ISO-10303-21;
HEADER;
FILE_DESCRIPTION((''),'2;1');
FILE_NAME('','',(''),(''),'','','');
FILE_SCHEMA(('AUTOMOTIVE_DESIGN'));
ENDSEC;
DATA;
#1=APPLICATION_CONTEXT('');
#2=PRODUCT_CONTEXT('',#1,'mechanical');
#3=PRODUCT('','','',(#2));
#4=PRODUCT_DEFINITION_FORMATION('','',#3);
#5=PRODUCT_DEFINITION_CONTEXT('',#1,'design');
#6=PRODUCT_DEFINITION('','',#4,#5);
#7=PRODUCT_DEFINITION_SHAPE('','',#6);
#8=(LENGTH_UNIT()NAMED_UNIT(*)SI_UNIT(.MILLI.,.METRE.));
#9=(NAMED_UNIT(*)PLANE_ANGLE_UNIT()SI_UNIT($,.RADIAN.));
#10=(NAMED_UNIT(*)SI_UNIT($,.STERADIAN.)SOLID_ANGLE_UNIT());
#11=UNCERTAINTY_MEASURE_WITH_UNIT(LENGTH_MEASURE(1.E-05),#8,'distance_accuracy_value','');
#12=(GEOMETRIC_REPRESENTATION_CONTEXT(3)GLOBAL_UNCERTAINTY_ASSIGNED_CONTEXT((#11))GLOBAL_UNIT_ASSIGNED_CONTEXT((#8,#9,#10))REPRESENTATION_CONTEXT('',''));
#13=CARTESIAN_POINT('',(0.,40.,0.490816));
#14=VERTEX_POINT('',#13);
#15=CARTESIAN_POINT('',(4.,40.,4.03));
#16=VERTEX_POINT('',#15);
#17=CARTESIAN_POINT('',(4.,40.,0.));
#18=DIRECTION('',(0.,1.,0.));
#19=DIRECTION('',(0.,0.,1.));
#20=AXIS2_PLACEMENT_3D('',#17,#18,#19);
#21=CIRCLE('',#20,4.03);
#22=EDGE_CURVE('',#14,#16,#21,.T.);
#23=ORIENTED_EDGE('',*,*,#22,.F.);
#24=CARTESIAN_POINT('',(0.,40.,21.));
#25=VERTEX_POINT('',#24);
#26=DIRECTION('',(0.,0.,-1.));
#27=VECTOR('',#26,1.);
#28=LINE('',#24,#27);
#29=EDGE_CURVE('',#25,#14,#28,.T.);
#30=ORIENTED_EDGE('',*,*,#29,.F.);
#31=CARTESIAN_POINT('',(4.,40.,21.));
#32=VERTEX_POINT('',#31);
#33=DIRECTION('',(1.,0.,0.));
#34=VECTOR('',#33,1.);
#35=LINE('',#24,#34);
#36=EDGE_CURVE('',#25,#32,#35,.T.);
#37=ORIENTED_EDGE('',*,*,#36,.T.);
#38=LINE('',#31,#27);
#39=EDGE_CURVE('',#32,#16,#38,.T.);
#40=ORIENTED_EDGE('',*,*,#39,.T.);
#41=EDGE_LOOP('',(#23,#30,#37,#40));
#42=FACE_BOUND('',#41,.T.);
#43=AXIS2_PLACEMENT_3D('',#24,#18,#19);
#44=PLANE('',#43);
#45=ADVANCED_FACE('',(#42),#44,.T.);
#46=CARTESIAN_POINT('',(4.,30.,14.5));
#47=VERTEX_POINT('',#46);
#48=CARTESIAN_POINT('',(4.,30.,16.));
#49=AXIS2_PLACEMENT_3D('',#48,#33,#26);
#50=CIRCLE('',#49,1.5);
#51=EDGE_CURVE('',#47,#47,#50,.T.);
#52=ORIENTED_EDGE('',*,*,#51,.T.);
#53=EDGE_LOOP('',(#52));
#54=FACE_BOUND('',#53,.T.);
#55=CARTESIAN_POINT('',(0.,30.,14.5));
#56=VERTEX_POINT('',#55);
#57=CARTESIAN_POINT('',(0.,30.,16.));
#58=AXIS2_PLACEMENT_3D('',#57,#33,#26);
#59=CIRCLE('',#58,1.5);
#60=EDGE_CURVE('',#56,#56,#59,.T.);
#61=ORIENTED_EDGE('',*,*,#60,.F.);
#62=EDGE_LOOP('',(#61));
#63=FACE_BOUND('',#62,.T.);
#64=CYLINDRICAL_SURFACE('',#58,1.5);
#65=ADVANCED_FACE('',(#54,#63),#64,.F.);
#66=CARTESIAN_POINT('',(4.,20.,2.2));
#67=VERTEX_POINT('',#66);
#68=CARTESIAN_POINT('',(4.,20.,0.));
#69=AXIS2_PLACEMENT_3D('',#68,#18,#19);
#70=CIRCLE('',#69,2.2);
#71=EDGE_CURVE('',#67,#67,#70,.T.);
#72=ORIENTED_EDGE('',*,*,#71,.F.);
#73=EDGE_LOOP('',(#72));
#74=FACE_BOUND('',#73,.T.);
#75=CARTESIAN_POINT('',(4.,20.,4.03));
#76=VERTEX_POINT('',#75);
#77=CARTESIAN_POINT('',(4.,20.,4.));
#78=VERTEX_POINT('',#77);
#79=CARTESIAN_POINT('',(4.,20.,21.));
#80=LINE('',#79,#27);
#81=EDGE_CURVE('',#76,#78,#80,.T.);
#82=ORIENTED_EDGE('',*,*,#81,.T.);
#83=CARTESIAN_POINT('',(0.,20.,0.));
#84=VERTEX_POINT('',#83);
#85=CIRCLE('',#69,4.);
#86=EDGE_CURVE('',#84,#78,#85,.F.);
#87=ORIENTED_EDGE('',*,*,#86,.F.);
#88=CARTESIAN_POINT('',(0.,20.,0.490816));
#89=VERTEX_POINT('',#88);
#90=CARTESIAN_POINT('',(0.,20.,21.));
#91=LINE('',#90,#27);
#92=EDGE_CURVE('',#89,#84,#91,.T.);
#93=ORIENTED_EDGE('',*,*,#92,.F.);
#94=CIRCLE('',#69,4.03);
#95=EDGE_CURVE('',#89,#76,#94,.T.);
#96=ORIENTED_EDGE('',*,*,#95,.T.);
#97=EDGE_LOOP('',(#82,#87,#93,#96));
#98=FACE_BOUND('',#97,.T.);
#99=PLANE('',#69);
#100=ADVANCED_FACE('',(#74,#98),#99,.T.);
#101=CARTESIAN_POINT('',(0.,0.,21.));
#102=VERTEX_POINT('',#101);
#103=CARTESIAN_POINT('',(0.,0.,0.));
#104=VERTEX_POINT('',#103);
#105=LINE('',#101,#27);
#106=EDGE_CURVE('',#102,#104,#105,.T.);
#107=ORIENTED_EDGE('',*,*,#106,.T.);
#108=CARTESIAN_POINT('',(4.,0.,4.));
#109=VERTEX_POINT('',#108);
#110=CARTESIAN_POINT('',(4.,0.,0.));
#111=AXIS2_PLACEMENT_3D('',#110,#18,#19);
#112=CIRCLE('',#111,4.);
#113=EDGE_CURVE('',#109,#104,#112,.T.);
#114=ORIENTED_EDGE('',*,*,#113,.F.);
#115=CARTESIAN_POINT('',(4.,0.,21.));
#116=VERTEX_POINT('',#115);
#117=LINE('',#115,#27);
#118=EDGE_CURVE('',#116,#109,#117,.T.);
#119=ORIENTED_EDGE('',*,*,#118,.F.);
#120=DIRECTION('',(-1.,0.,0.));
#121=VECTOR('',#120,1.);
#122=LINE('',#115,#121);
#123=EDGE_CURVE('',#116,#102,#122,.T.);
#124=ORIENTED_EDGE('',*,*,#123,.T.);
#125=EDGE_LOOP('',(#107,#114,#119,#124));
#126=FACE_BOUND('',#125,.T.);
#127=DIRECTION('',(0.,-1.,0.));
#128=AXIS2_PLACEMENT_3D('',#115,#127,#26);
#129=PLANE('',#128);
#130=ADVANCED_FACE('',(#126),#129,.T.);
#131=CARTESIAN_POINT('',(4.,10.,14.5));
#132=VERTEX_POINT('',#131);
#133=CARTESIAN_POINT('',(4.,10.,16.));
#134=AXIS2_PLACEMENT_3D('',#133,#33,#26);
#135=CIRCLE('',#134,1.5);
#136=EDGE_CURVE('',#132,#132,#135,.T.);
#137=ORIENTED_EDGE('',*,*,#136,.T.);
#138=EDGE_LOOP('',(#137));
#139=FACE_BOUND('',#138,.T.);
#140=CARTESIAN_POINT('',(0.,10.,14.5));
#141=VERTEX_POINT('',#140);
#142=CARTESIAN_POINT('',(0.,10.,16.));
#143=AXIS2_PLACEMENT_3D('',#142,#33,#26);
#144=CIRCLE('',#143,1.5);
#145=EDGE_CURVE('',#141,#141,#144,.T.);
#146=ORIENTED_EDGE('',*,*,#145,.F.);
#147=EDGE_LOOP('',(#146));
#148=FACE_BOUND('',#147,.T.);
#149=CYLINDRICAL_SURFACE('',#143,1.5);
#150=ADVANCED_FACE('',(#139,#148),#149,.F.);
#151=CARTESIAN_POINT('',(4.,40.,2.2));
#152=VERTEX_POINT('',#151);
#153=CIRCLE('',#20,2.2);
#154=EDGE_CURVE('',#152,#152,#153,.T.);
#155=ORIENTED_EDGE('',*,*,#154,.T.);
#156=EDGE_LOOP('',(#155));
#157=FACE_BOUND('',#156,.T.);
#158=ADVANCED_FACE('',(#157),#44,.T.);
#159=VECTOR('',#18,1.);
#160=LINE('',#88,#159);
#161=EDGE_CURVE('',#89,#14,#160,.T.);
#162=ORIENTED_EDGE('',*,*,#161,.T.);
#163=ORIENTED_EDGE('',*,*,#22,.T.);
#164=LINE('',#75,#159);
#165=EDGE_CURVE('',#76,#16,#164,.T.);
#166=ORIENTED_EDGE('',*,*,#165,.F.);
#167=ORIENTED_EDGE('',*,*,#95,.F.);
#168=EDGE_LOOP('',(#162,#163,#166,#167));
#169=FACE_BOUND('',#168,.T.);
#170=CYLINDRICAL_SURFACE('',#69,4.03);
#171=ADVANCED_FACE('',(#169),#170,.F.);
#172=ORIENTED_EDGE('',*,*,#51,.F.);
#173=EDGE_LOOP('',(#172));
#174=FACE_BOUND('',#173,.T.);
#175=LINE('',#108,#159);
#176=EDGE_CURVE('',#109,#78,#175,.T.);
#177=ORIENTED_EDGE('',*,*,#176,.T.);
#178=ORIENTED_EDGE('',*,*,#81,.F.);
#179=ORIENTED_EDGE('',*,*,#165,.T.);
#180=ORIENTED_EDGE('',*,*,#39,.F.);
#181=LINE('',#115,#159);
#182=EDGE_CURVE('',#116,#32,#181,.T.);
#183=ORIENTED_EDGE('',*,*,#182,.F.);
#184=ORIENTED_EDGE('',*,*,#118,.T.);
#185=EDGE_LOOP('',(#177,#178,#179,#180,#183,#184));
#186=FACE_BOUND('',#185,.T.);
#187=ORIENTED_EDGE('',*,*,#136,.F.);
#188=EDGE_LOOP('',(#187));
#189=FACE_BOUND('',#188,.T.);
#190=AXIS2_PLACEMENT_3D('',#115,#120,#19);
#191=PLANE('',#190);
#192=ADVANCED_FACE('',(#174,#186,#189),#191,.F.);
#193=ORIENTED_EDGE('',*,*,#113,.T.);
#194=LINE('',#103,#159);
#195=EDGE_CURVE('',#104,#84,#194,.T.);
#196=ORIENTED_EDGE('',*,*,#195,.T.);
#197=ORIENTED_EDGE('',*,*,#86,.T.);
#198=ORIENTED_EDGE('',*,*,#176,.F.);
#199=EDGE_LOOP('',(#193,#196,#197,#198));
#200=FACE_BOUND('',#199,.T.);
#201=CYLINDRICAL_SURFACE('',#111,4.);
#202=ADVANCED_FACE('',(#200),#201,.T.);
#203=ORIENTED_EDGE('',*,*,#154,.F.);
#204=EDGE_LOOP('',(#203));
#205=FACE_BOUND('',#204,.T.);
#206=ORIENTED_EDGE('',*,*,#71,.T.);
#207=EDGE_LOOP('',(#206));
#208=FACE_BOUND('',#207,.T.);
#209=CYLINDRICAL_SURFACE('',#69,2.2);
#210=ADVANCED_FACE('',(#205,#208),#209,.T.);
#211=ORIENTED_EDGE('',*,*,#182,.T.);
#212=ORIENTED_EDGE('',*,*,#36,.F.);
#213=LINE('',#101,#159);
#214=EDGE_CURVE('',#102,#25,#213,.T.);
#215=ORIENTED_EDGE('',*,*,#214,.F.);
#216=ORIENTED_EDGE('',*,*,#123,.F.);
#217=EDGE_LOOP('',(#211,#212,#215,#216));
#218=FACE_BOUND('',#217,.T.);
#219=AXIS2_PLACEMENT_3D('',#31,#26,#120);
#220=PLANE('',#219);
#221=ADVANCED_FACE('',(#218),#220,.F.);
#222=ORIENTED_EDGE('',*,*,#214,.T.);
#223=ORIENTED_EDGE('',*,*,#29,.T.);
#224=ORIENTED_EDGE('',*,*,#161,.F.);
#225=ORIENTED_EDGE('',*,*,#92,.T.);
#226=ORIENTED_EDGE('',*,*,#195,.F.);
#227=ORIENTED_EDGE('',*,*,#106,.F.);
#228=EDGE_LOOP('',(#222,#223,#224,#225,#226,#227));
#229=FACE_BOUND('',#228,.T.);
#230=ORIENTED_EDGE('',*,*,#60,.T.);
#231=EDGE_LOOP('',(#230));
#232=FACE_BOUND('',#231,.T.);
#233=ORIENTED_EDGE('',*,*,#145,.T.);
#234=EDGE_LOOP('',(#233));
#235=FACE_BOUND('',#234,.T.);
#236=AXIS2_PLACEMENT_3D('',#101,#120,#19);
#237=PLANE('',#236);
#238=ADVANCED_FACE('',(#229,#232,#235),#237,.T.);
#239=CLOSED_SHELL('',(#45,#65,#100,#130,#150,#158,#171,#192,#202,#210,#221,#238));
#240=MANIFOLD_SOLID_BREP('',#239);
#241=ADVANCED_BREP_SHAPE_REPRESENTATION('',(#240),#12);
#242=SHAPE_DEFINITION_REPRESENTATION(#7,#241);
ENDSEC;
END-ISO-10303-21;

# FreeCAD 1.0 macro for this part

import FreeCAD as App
import Part
import Sketcher

V = App.Vector

doc = App.newDocument("Part")
params = doc.addObject("Spreadsheet::Sheet", "Params")
for row, (alias, value) in enumerate([
    ("sketch1_width", "4 mm"),
    ("sketch1_height", "40 mm"),
    ("pad1_length", "21 mm"),
    ("sketch2_diameter", "8 mm"),
    ("sketch3_height", "40 mm"),
    ("sketch4_diameter", "4.4 mm"),
    ("sketch4_diameter2", "8.06 mm"),
    ("pocket1_length", "20 mm"),
    ("sketch5_diameter", "3 mm"),
], start=1):
    params.set(f"A{row}", alias)
    params.set(f"B{row}", "=" + value)
    params.setAlias(f"B{row}", alias)

body = doc.addObject("PartDesign::Body", "Body")

# Sketch on XY plane
sketch1 = body.newObject("Sketcher::SketchObject", "Sketch")
sketch1.AttachmentSupport = (doc.getObject("XY_Plane"), [""])
sketch1.MapMode = "FlatFace"
sketch1.addGeometry(Part.LineSegment(V(0, 40, 0), V(0, 0, 0)), False)
sketch1.addGeometry(Part.LineSegment(V(0, 0, 0), V(4, 0, 0)), False)
sketch1.addGeometry(Part.LineSegment(V(4, 0, 0), V(4, 40, 0)), False)
sketch1.addGeometry(Part.LineSegment(V(4, 40, 0), V(0, 40, 0)), False)
sketch1.addConstraint(Sketcher.Constraint("Coincident", 0, 2, 1, 1))
sketch1.addConstraint(Sketcher.Constraint("Coincident", 1, 2, 2, 1))
sketch1.addConstraint(Sketcher.Constraint("Coincident", 2, 2, 3, 1))
sketch1.addConstraint(Sketcher.Constraint("Coincident", 3, 2, 0, 1))
sketch1.addConstraint(Sketcher.Constraint("Vertical", 0))
sketch1.addConstraint(Sketcher.Constraint("Horizontal", 1))
sketch1.addConstraint(Sketcher.Constraint("Vertical", 2))
sketch1.addConstraint(Sketcher.Constraint("Horizontal", 3))
sketch1.addConstraint(Sketcher.Constraint("Coincident", 0, 2, -1, 1))
sketch1.addConstraint(Sketcher.Constraint("DistanceX", 1, 1, 1, 2, 4.0))
sketch1.addConstraint(Sketcher.Constraint("DistanceY", 0, 2, 0, 1, 40.0))
sketch1.setExpression("Constraints[9]", "Params.sketch1_width")
sketch1.setExpression("Constraints[10]", "Params.sketch1_height")
pad1 = body.newObject("PartDesign::Pad", "Pad")
pad1.Profile = sketch1
pad1.setExpression("Length", "Params.pad1_length")

# Sketch on XZ plane
sketch2 = body.newObject("Sketcher::SketchObject", "Sketch001")
sketch2.AttachmentSupport = (doc.getObject("XZ_Plane"), [""])
sketch2.MapMode = "FlatFace"
sketch2.AttachmentOffset = App.Placement(V(0, 0, -40), App.Rotation())
sketch2.addGeometry(Part.Circle(V(4, 0, 0), V(0, 0, 1), 4), False)
sketch2.addConstraint(Sketcher.Constraint("PointOnObject", 0, 3, -1))
sketch2.addConstraint(Sketcher.Constraint("Diameter", 0, 8.0))
sketch2.addConstraint(Sketcher.Constraint("DistanceX", -1, 1, 0, 3, 4.0))
sketch2.setExpression("Constraints[1]", "Params.sketch2_diameter")

# Sketch on XY plane
sketch3 = body.newObject("Sketcher::SketchObject", "Sketch002")
sketch3.AttachmentSupport = (doc.getObject("XY_Plane"), [""])
sketch3.MapMode = "FlatFace"
sketch3.addGeometry(Part.LineSegment(V(4, 0, 0), V(4, 40, 0)), False)
sketch3.addConstraint(Sketcher.Constraint("Vertical", 0))
sketch3.addConstraint(Sketcher.Constraint("PointOnObject", 0, 1, -1))
sketch3.addConstraint(Sketcher.Constraint("DistanceY", 0, 1, 0, 2, 40.0))
sketch3.addConstraint(Sketcher.Constraint("DistanceX", -1, 1, 0, 1, 4.0))
sketch3.setExpression("Constraints[2]", "Params.sketch3_height")
doc.recompute()

additivepipe = body.newObject("PartDesign::AdditivePipe", "AdditivePipe")
additivepipe.Profile = sketch2
additivepipe.Spine = (sketch3, ["Edge1"])

# Sketch on XZ plane
sketch4 = body.newObject("Sketcher::SketchObject", "Sketch003")
sketch4.AttachmentSupport = (doc.getObject("XZ_Plane"), [""])
sketch4.MapMode = "FlatFace"
sketch4.AttachmentOffset = App.Placement(V(0, 0, -40), App.Rotation())
sketch4.addGeometry(Part.Circle(V(4, 0, 0), V(0, 0, 1), 4), False)
sketch4.addGeometry(Part.Circle(V(4, 0, 0), V(0, 0, 1), 2.2), False)
sketch4.addConstraint(Sketcher.Constraint("Coincident", 1, 3, 0, 3))
sketch4.addConstraint(Sketcher.Constraint("PointOnObject", 0, 3, -1))
sketch4.addConstraint(Sketcher.Constraint("Diameter", 1, 4.4))
sketch4.addConstraint(Sketcher.Constraint("Diameter", 0, 8.06))
sketch4.addConstraint(Sketcher.Constraint("DistanceX", -1, 1, 0, 3, 4.0))
sketch4.setExpression("Constraints[2]", "Params.sketch4_diameter")
sketch4.setExpression("Constraints[3]", "Params.sketch4_diameter2")
pocket1 = body.newObject("PartDesign::Pocket", "Pocket")
pocket1.Profile = sketch4
pocket1.setExpression("Length", "Params.pocket1_length")
pocket1.Reversed = True

# Sketch on YZ plane
sketch5 = body.newObject("Sketcher::SketchObject", "Sketch004")
sketch5.AttachmentSupport = (doc.getObject("YZ_Plane"), [""])
sketch5.MapMode = "FlatFace"
sketch5.AttachmentOffset = App.Placement(V(0, 0, 4), App.Rotation())
sketch5.addGeometry(Part.Circle(V(30, 16, 0), V(0, 0, 1), 1.5), False)
sketch5.addGeometry(Part.Circle(V(10, 16, 0), V(0, 0, 1), 1.5), False)
sketch5.addConstraint(Sketcher.Constraint("Equal", 0, 1))
sketch5.addConstraint(Sketcher.Constraint("Horizontal", 0, 3, 1, 3))
sketch5.addConstraint(Sketcher.Constraint("Diameter", 0, 3.0))
sketch5.addConstraint(Sketcher.Constraint("DistanceX", -1, 1, 0, 3, 30.0))
sketch5.addConstraint(Sketcher.Constraint("DistanceY", -1, 1, 0, 3, 16.0))
sketch5.addConstraint(Sketcher.Constraint("DistanceX", -1, 1, 1, 3, 10.0))
sketch5.setExpression("Constraints[2]", "Params.sketch5_diameter")
pocket2 = body.newObject("PartDesign::Pocket", "Pocket001")
pocket2.Profile = sketch5
pocket2.Type = "ThroughAll"

doc.recompute()
